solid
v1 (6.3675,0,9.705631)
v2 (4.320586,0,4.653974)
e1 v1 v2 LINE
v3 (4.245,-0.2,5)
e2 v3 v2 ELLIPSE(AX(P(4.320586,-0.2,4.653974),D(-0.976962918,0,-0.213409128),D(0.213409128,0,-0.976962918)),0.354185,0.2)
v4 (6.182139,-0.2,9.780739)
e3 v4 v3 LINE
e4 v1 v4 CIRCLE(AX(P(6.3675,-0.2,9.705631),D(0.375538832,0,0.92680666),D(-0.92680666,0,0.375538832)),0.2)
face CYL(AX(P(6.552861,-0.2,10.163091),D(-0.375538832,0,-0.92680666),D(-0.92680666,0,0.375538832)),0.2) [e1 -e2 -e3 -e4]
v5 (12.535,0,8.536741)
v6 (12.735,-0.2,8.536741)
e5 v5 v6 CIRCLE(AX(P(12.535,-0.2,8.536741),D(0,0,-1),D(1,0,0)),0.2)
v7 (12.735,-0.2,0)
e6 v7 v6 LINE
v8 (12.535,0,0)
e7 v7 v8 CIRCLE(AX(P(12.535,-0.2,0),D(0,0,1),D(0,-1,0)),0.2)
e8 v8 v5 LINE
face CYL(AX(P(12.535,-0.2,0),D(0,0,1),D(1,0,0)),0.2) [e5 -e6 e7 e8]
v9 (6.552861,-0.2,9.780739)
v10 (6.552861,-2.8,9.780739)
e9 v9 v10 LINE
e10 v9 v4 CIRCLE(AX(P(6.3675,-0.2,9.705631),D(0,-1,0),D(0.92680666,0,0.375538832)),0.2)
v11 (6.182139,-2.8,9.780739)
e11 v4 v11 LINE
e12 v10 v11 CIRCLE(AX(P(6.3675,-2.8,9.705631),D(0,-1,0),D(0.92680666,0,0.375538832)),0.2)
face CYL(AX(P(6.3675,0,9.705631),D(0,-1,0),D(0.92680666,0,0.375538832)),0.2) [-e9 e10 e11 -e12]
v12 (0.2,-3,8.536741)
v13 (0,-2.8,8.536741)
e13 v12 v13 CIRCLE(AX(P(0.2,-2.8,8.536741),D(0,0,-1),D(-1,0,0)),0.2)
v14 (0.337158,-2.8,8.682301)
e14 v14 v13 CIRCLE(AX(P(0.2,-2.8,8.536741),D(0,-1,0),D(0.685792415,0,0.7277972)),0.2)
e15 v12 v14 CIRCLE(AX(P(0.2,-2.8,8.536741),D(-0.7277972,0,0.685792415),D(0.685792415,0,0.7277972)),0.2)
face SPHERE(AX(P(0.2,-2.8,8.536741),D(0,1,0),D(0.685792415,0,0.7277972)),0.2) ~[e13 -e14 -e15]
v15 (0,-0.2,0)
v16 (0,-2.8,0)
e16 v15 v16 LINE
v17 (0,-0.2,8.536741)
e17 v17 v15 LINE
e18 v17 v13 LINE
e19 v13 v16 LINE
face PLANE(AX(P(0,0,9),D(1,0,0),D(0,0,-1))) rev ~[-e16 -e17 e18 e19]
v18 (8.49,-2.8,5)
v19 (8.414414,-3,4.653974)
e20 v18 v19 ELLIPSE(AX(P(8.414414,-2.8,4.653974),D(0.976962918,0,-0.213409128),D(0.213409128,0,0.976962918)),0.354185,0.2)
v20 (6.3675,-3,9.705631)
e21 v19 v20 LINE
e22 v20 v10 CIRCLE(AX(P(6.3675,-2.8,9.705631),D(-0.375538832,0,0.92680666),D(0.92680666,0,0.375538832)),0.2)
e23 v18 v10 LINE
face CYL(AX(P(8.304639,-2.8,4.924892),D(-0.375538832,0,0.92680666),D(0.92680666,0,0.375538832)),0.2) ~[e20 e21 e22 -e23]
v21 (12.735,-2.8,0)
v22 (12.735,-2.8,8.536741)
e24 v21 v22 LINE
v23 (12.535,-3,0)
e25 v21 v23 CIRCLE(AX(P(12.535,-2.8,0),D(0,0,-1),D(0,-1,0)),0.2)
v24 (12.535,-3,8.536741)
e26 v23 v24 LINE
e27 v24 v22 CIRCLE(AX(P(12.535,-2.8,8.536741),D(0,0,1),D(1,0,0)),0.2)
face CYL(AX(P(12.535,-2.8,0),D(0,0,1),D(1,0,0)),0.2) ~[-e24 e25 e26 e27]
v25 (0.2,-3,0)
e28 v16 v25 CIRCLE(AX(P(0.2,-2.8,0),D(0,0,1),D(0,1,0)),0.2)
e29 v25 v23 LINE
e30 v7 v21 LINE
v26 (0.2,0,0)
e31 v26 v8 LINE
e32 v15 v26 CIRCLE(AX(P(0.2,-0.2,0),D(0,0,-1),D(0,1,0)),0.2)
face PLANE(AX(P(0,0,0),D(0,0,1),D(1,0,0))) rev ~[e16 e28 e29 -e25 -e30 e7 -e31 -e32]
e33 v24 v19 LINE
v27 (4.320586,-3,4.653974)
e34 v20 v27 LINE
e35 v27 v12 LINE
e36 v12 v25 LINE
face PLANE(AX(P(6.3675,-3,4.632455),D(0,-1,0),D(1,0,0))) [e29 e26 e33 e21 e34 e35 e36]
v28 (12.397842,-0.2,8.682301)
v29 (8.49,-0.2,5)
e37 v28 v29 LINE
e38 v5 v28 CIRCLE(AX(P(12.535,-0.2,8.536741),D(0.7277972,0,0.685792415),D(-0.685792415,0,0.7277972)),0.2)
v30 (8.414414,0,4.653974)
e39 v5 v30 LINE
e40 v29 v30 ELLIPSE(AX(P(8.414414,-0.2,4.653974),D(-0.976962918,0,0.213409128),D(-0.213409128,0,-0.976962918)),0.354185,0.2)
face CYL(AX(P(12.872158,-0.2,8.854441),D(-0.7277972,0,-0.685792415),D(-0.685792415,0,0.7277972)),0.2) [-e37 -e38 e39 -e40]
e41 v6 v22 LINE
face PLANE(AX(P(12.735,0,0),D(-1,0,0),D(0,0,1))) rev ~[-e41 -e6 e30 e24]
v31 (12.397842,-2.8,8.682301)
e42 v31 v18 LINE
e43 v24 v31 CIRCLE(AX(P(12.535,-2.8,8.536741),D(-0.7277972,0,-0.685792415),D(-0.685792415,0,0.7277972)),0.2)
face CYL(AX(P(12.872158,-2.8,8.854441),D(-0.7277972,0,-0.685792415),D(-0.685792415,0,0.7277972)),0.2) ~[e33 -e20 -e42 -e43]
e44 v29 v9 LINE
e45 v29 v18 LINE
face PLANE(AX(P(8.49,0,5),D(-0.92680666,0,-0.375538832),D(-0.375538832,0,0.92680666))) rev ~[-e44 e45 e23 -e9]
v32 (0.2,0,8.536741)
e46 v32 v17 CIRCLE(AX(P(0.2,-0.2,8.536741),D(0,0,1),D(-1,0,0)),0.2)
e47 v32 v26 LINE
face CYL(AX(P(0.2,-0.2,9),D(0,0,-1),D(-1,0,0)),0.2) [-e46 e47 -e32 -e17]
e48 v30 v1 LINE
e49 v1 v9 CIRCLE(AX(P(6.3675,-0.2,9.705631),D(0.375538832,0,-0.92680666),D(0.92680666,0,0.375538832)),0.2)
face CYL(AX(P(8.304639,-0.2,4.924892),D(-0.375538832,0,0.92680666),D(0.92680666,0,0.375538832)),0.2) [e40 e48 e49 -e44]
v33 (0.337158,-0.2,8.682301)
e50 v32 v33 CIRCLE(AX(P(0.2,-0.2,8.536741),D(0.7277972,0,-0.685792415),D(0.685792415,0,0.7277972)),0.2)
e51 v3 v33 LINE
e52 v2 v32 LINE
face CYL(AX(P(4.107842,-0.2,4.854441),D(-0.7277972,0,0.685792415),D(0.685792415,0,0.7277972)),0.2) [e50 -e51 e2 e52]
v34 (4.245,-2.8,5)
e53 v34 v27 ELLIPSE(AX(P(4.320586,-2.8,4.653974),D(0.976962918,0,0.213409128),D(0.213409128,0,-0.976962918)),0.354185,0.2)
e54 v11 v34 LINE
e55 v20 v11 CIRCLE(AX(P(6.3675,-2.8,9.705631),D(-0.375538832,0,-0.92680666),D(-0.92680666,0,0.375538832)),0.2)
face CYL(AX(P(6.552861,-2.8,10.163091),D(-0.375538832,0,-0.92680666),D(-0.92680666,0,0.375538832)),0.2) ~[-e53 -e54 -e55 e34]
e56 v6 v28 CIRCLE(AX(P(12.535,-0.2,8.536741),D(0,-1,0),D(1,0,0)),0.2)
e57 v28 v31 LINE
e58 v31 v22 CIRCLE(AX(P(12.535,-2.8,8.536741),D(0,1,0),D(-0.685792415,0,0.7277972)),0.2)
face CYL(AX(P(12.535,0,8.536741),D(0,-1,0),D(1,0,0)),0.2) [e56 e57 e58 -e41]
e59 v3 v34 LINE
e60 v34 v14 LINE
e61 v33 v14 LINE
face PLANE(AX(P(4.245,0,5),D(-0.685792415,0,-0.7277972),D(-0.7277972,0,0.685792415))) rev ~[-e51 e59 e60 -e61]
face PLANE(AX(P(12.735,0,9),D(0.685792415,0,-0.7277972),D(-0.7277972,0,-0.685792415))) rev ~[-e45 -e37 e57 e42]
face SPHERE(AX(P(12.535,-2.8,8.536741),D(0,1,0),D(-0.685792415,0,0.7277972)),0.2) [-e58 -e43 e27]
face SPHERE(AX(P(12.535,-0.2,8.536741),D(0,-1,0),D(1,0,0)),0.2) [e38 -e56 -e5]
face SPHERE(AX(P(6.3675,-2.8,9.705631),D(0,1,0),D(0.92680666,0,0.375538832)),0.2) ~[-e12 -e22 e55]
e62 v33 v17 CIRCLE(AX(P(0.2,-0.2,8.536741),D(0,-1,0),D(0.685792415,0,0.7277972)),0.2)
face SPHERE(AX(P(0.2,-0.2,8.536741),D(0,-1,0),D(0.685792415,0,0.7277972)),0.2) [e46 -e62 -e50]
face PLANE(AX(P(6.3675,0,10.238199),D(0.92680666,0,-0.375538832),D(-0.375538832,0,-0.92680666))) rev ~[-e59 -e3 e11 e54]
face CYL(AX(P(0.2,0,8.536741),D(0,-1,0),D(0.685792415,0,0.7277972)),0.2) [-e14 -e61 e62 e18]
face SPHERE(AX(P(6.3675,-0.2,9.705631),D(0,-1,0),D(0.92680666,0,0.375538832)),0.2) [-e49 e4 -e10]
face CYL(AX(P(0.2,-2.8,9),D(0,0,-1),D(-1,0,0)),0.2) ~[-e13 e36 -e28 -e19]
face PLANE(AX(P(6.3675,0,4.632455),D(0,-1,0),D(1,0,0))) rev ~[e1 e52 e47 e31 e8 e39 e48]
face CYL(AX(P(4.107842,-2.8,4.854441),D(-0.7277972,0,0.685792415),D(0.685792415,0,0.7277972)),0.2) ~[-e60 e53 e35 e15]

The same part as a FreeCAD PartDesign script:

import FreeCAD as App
import Part
import Sketcher


def edges_at(feature, points):
    """Names of the edges that pass closest to the given points."""
    edges = feature.Shape.Edges
    near = lambda p: min(range(len(edges)), key=lambda i: edges[i].distToShape(Part.Vertex(*p))[0])
    return sorted({f"Edge{near(p) + 1}" for p in points})

doc = App.newDocument("Part")
body = doc.addObject("PartDesign::Body", "Body")

sketch1 = body.newObject("Sketcher::SketchObject", "Sketch")
sketch1.AttachmentSupport = (doc.getObject("XZ_Plane"), [""])
sketch1.MapMode = "FlatFace"
sketch1.addGeometry([
    Part.LineSegment(App.Vector(0, 0, 0), App.Vector(12.735, 0, 0)),
    Part.LineSegment(App.Vector(12.735, 0, 0), App.Vector(12.735, 9, 0)),
    Part.LineSegment(App.Vector(12.735, 9, 0), App.Vector(8.49, 5, 0)),
    Part.LineSegment(App.Vector(8.49, 5, 0), App.Vector(6.3675, 10.238199, 0)),
    Part.LineSegment(App.Vector(6.3675, 10.238199, 0), App.Vector(4.245, 5, 0)),
    Part.LineSegment(App.Vector(4.245, 5, 0), App.Vector(0, 9, 0)),
    Part.LineSegment(App.Vector(0, 9, 0), App.Vector(0, 0, 0)),
], False)
sketch1.addConstraint([
    Sketcher.Constraint("Coincident", 0, 2, 1, 1),
    Sketcher.Constraint("Coincident", 1, 2, 2, 1),
    Sketcher.Constraint("Coincident", 2, 2, 3, 1),
    Sketcher.Constraint("Coincident", 3, 2, 4, 1),
    Sketcher.Constraint("Coincident", 4, 2, 5, 1),
    Sketcher.Constraint("Coincident", 5, 2, 6, 1),
    Sketcher.Constraint("Coincident", 6, 2, 0, 1),
    Sketcher.Constraint("Horizontal", 0),
    Sketcher.Constraint("Vertical", 1),
    Sketcher.Constraint("Vertical", 6),
    Sketcher.Constraint("Coincident", 6, 2, -1, 1),
    Sketcher.Constraint("Horizontal", 2, 2, 4, 2),
    Sketcher.Constraint("Horizontal", 1, 2, 5, 2),
    Sketcher.Constraint("Equal", 3, 4),
    Sketcher.Constraint("Equal", 2, 5),
    Sketcher.Constraint("DistanceY", 1, 1, 1, 2, 9.0),
    Sketcher.Constraint("DistanceY", -1, 1, 2, 2, 5.0),
    Sketcher.Constraint("DistanceX", 0, 1, 0, 2, 12.735),
    Sketcher.Constraint("DistanceX", -1, 1, 2, 2, 8.49),
    Sketcher.Constraint("DistanceY", -1, 1, 3, 2, 10.238199),
])
pad1 = body.newObject("PartDesign::Pad", "Pad")
pad1.Profile = sketch1
pad1.Length = 3
doc.recompute()

fillet = body.newObject("PartDesign::Fillet", "Fillet")
fillet.Base = (pad1, edges_at(pad1, [
    (0, -1.5, 9),
    (6.367, -1.5, 10.238),
    (12.735, 0, 4.5),
    (7.429, -3, 7.619),
    (5.306, -3, 7.619),
    (2.123, -3, 7),
    (10.613, -3, 7),
    (10.613, 0, 7),
    (7.429, 0, 7.619),
    (5.306, 0, 7.619),
    (2.123, 0, 7),
    (0, 0, 4.5),
    (12.735, -3, 4.5),
    (0, -3, 4.5),
    (12.735, -1.5, 9),
]))
fillet.Radius = 0.2

doc.recompute()
